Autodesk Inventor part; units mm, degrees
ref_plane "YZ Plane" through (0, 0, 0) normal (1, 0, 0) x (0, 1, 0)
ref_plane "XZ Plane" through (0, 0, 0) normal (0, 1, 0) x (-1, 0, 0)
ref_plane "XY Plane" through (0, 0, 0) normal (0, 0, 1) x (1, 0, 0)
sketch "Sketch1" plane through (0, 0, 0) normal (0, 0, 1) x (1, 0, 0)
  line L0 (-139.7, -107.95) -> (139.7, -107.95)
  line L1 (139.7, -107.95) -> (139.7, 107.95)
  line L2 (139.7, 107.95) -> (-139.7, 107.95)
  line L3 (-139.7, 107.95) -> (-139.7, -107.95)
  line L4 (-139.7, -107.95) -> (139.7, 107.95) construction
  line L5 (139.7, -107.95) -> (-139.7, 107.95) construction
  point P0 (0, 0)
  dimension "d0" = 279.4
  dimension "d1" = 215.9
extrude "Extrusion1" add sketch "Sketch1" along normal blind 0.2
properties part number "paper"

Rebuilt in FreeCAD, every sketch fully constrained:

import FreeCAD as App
import Part
import Sketcher
from FreeCAD import Vector
Q = App.Units.Quantity

doc = App.newDocument("Part")
params = doc.addObject("Spreadsheet::Sheet", "Params")
for row, (alias, value) in enumerate([
    ("sketch1_width", "11 in"),
    ("sketch1_height", "8.5 in"),
    ("pad1_length", "0.2 mm"),
], start=1):
    params.set(f"A{row}", alias)
    params.set(f"B{row}", "=" + value)
    params.setAlias(f"B{row}", alias)

body = doc.addObject("PartDesign::Body", "Body")

sketch1 = doc.addObject("Sketcher::SketchObject", "Sketch")
body.addObject(sketch1)
sketch1.AttachmentSupport = (doc.XY_Plane, [""])
sketch1.MapMode = "FlatFace"
sketch1.addGeometry([
    Part.LineSegment(Vector(-139.7, 107.95, 0), Vector(-139.7, -107.95, 0)),
    Part.LineSegment(Vector(-139.7, -107.95, 0), Vector(139.7, -107.95, 0)),
    Part.LineSegment(Vector(139.7, -107.95, 0), Vector(139.7, 107.95, 0)),
    Part.LineSegment(Vector(139.7, 107.95, 0), Vector(-139.7, 107.95, 0)),
], False)
sketch1.addConstraint([
    Sketcher.Constraint("Coincident", 0, 2, 1, 1),
    Sketcher.Constraint("Coincident", 1, 2, 2, 1),
    Sketcher.Constraint("Coincident", 2, 2, 3, 1),
    Sketcher.Constraint("Coincident", 3, 2, 0, 1),
    Sketcher.Constraint("Vertical", 0),
    Sketcher.Constraint("Horizontal", 1),
    Sketcher.Constraint("Vertical", 2),
    Sketcher.Constraint("Horizontal", 3),
    Sketcher.Constraint("Symmetric", 0, 2, 2, 2, -1, 1),
    Sketcher.Constraint("DistanceX", 1, 1, 1, 2, Q("11 in")),
    Sketcher.Constraint("DistanceY", 0, 2, 0, 1, Q("8.5 in")),
])
sketch1.setExpression("Constraints[9]", "Params.sketch1_width")
sketch1.setExpression("Constraints[10]", "Params.sketch1_height")
pad1 = doc.addObject("PartDesign::Pad", "Pad")
body.addObject(pad1)
pad1.Profile = sketch1
pad1.setExpression("Length", "Params.pad1_length")

doc.recompute()
